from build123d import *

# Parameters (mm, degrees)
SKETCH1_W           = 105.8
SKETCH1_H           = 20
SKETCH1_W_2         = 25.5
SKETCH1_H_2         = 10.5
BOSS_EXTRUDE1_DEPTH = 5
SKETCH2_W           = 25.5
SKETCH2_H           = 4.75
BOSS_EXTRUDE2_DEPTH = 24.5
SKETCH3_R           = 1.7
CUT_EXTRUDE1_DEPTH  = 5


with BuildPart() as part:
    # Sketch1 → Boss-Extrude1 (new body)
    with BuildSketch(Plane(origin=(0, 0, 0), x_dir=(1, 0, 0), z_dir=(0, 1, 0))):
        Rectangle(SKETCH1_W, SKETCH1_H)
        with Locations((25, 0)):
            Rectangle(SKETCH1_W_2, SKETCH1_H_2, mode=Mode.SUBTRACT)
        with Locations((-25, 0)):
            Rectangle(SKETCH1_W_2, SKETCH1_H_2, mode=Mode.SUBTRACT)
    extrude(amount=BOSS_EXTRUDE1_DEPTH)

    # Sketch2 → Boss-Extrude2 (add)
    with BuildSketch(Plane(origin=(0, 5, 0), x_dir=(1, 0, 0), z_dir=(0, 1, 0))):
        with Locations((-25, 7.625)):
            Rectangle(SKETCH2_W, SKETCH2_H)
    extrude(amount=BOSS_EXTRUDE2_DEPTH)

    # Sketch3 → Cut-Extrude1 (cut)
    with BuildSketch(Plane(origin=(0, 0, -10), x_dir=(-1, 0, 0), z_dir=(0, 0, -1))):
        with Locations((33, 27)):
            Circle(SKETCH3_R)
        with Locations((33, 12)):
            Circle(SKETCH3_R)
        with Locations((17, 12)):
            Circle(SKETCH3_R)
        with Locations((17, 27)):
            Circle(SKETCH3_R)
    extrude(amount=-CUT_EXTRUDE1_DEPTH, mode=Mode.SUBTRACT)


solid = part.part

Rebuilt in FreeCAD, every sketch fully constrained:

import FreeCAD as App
import Part
import Sketcher
from FreeCAD import Vector
Q = App.Units.Quantity

doc = App.newDocument("Part")
params = doc.addObject("Spreadsheet::Sheet", "Params")
for row, (alias, value) in enumerate([
    ("sketch1_height", "20 mm"),
    ("sketch1_width", "105.8 mm"),
    ("sketch1_width2", "25.5 mm"),
    ("sketch1_height2", "10.5 mm"),
    ("pad1_length", "5 mm"),
    ("sketch2_width", "25.5 mm"),
    ("sketch2_height", "4.75 mm"),
    ("pad2_length", "24.5 mm"),
    ("sketch3_diameter", "3.4 mm"),
    ("pocket1_length", "5 mm"),
], start=1):
    params.set(f"A{row}", alias)
    params.set(f"B{row}", "=" + value)
    params.setAlias(f"B{row}", alias)

body = doc.addObject("PartDesign::Body", "Body")

sketch1 = doc.addObject("Sketcher::SketchObject", "Sketch")
body.addObject(sketch1)
sketch1.AttachmentSupport = (doc.XZ_Plane, [""])
sketch1.MapMode = "FlatFace"
sketch1.addGeometry([
    Part.LineSegment(Vector(-52.9, -10, 0), Vector(-52.9, 10, 0)),
    Part.LineSegment(Vector(-52.9, 10, 0), Vector(52.9, 10, 0)),
    Part.LineSegment(Vector(52.9, 10, 0), Vector(52.9, -10, 0)),
    Part.LineSegment(Vector(52.9, -10, 0), Vector(-52.9, -10, 0)),
    Part.LineSegment(Vector(-12.25, 5.25, 0), Vector(-37.75, 5.25, 0)),
    Part.LineSegment(Vector(-37.75, 5.25, 0), Vector(-37.75, -5.25, 0)),
    Part.LineSegment(Vector(-37.75, -5.25, 0), Vector(-12.25, -5.25, 0)),
    Part.LineSegment(Vector(-12.25, -5.25, 0), Vector(-12.25, 5.25, 0)),
    Part.LineSegment(Vector(37.75, 5.25, 0), Vector(12.25, 5.25, 0)),
    Part.LineSegment(Vector(12.25, 5.25, 0), Vector(12.25, -5.25, 0)),
    Part.LineSegment(Vector(12.25, -5.25, 0), Vector(37.75, -5.25, 0)),
    Part.LineSegment(Vector(37.75, -5.25, 0), Vector(37.75, 5.25, 0)),
], False)
sketch1.addConstraint([
    Sketcher.Constraint("Coincident", 0, 2, 1, 1),
    Sketcher.Constraint("Coincident", 1, 2, 2, 1),
    Sketcher.Constraint("Coincident", 2, 2, 3, 1),
    Sketcher.Constraint("Coincident", 3, 2, 0, 1),
    Sketcher.Constraint("Coincident", 4, 2, 5, 1),
    Sketcher.Constraint("Coincident", 5, 2, 6, 1),
    Sketcher.Constraint("Coincident", 6, 2, 7, 1),
    Sketcher.Constraint("Coincident", 7, 2, 4, 1),
    Sketcher.Constraint("Coincident", 8, 2, 9, 1),
    Sketcher.Constraint("Coincident", 9, 2, 10, 1),
    Sketcher.Constraint("Coincident", 10, 2, 11, 1),
    Sketcher.Constraint("Coincident", 11, 2, 8, 1),
    Sketcher.Constraint("Vertical", 0),
    Sketcher.Constraint("Horizontal", 1),
    Sketcher.Constraint("Vertical", 2),
    Sketcher.Constraint("Horizontal", 3),
    Sketcher.Constraint("Horizontal", 4),
    Sketcher.Constraint("Vertical", 5),
    Sketcher.Constraint("Horizontal", 6),
    Sketcher.Constraint("Vertical", 7),
    Sketcher.Constraint("Horizontal", 8),
    Sketcher.Constraint("Vertical", 9),
    Sketcher.Constraint("Horizontal", 10),
    Sketcher.Constraint("Vertical", 11),
    Sketcher.Constraint("Symmetric", 0, 2, 2, 2, -1, 1),
    Sketcher.Constraint("Symmetric", 6, 2, 8, 2, -1, 1),
    Sketcher.Constraint("Symmetric", 4, 2, 10, 2, -1, 1),
    Sketcher.Constraint("Horizontal", 7, 2, 8, 2),
    Sketcher.Constraint("DistanceY", 0, 1, 0, 2, Q("20 mm")),
    Sketcher.Constraint("DistanceX", 1, 1, 1, 2, Q("105.8 mm")),
    Sketcher.Constraint("DistanceX", 4, 2, 4, 1, Q("25.5 mm")),
    Sketcher.Constraint("DistanceY", 5, 2, 5, 1, Q("10.5 mm")),
    Sketcher.Constraint("DistanceX", 4, 2, 8, 2, Q("50 mm")),
])
sketch1.setExpression("Constraints[28]", "Params.sketch1_height")
sketch1.setExpression("Constraints[29]", "Params.sketch1_width")
sketch1.setExpression("Constraints[30]", "Params.sketch1_width2")
sketch1.setExpression("Constraints[31]", "Params.sketch1_height2")
pad1 = doc.addObject("PartDesign::Pad", "Pad")
body.addObject(pad1)
pad1.Profile = sketch1
pad1.setExpression("Length", "Params.pad1_length")
pad1.Reversed = True

sketch2 = doc.addObject("Sketcher::SketchObject", "Sketch001")
body.addObject(sketch2)
sketch2.AttachmentSupport = (doc.XZ_Plane, [""])
sketch2.MapMode = "FlatFace"
sketch2.AttachmentOffset = App.Placement(Vector(0, 0, -5), App.Rotation())
sketch2.addGeometry([
    Part.LineSegment(Vector(-37.75, -10, 0), Vector(-37.75, -5.25, 0)),
    Part.LineSegment(Vector(-37.75, -5.25, 0), Vector(-12.25, -5.25, 0)),
    Part.LineSegment(Vector(-12.25, -5.25, 0), Vector(-12.25, -10, 0)),
    Part.LineSegment(Vector(-12.25, -10, 0), Vector(-37.75, -10, 0)),
], False)
sketch2.addConstraint([
    Sketcher.Constraint("Coincident", 0, 2, 1, 1),
    Sketcher.Constraint("Coincident", 1, 2, 2, 1),
    Sketcher.Constraint("Coincident", 2, 2, 3, 1),
    Sketcher.Constraint("Coincident", 3, 2, 0, 1),
    Sketcher.Constraint("Vertical", 0),
    Sketcher.Constraint("Horizontal", 1),
    Sketcher.Constraint("Vertical", 2),
    Sketcher.Constraint("Horizontal", 3),
    Sketcher.Constraint("DistanceX", 1, 1, 1, 2, Q("25.5 mm")),
    Sketcher.Constraint("DistanceY", 2, 2, -1, 1, Q("10 mm")),
    Sketcher.Constraint("DistanceY", 0, 1, 0, 2, Q("4.75 mm")),
    Sketcher.Constraint("DistanceX", 0, 2, -1, 1, Q("37.75 mm")),
])
sketch2.setExpression("Constraints[8]", "Params.sketch2_width")
sketch2.setExpression("Constraints[10]", "Params.sketch2_height")
pad2 = doc.addObject("PartDesign::Pad", "Pad001")
body.addObject(pad2)
pad2.Profile = sketch2
pad2.setExpression("Length", "Params.pad2_length")
pad2.Reversed = True

sketch3 = doc.addObject("Sketcher::SketchObject", "Sketch002")
body.addObject(sketch3)
sketch3.AttachmentSupport = (doc.XY_Plane, [""])
sketch3.MapMode = "FlatFace"
sketch3.AttachmentOffset = App.Placement(Vector(0, 0, -10), App.Rotation())
sketch3.addGeometry([
    Part.Circle(Vector(-33, 27, 0), Vector(0, 0, 1), 1.7),
    Part.Circle(Vector(-33, 12, 0), Vector(0, 0, 1), 1.7),
    Part.Circle(Vector(-17, 12, 0), Vector(0, 0, 1), 1.7),
    Part.Circle(Vector(-17, 27, 0), Vector(0, 0, 1), 1.7),
], False)
sketch3.addConstraint([
    Sketcher.Constraint("Equal", 0, 1),
    Sketcher.Constraint("Equal", 1, 2),
    Sketcher.Constraint("Equal", 2, 3),
    Sketcher.Constraint("Horizontal", 1, 3, 2, 3),
    Sketcher.Constraint("Horizontal", 0, 3, 3, 3),
    Sketcher.Constraint("Vertical", 0, 3, 1, 3),
    Sketcher.Constraint("Vertical", 2, 3, 3, 3),
    Sketcher.Constraint("Diameter", 0, Q("3.4 mm")),
    Sketcher.Constraint("DistanceX", 0, 3, -1, 1, Q("33 mm")),
    Sketcher.Constraint("DistanceY", -1, 1, 0, 3, Q("27 mm")),
    Sketcher.Constraint("DistanceY", -1, 1, 1, 3, Q("12 mm")),
    Sketcher.Constraint("DistanceX", 2, 3, -1, 1, Q("17 mm")),
])
sketch3.setExpression("Constraints[7]", "Params.sketch3_diameter")
pocket1 = doc.addObject("PartDesign::Pocket", "Pocket")
body.addObject(pocket1)
pocket1.Profile = sketch3
pocket1.setExpression("Length", "Params.pocket1_length")
pocket1.Reversed = True

doc.recompute()
